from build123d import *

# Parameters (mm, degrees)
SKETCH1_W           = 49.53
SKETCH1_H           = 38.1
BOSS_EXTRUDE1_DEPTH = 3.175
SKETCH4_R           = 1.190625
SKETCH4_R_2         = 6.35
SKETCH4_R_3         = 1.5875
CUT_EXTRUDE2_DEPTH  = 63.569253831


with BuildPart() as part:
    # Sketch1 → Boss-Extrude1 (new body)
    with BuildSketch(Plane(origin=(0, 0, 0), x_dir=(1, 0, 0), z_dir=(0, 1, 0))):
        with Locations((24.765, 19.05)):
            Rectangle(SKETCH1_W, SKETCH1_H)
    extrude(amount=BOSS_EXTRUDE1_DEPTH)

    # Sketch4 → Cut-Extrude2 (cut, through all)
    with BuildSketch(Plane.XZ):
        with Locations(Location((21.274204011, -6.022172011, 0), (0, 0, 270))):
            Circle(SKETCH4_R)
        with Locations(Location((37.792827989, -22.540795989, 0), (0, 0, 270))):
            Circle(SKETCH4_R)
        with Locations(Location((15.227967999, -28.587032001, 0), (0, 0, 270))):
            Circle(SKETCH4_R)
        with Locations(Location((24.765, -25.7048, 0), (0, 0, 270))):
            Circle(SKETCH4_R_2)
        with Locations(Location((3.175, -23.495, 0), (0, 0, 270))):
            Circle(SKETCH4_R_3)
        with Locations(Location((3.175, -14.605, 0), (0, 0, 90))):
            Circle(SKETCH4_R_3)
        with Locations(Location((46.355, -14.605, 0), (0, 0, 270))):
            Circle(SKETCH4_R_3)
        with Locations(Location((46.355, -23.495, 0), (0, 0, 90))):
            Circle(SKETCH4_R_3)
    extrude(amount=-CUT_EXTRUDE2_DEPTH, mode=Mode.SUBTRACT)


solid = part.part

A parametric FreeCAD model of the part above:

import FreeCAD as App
import Part
import Sketcher
from FreeCAD import Vector
Q = App.Units.Quantity

doc = App.newDocument("Part")
body = doc.addObject("PartDesign::Body", "Body")

# Sketch on XZ plane
sketch1 = body.newObject("Sketcher::SketchObject", "Sketch")
sketch1.AttachmentSupport = (doc.getObject("XZ_Plane"), [""])
sketch1.MapMode = "FlatFace"
sketch1.addGeometry([
    Part.LineSegment(Vector(0, -38.1, 0), Vector(0, 0, 0)),
    Part.LineSegment(Vector(0, 0, 0), Vector(49.53, 0, 0)),
    Part.LineSegment(Vector(49.53, 0, 0), Vector(49.53, -38.1, 0)),
    Part.LineSegment(Vector(49.53, -38.1, 0), Vector(0, -38.1, 0)),
], False)
sketch1.addConstraint([
    Sketcher.Constraint("Coincident", 0, 2, 1, 1),
    Sketcher.Constraint("Coincident", 1, 2, 2, 1),
    Sketcher.Constraint("Coincident", 2, 2, 3, 1),
    Sketcher.Constraint("Coincident", 3, 2, 0, 1),
    Sketcher.Constraint("Vertical", 0),
    Sketcher.Constraint("Horizontal", 1),
    Sketcher.Constraint("Vertical", 2),
    Sketcher.Constraint("Horizontal", 3),
    Sketcher.Constraint("Coincident", 0, 2, -1, 1),
    Sketcher.Constraint("DistanceY", 0, 1, 0, 2, Q("1.5 in")),
    Sketcher.Constraint("DistanceX", 1, 1, 1, 2, Q("1.95 in")),
])
pad1 = body.newObject("PartDesign::Pad", "Pad")
pad1.Profile = sketch1
pad1.Length = Q("0.125 in")
pad1.Reversed = True

# Sketch on XZ plane
sketch2 = body.newObject("Sketcher::SketchObject", "Sketch001")
sketch2.AttachmentSupport = (doc.getObject("XZ_Plane"), [""])
sketch2.MapMode = "FlatFace"
sketch2.addGeometry([
    Part.Circle(Vector(21.274204, -6.022172, 0), Vector(0, 0, 1), 1.190625),  # 0
    Part.Circle(Vector(37.792828, -22.540796, 0), Vector(0, 0, 1), 1.190625),  # 1
    Part.Circle(Vector(15.227968, -28.587032, 0), Vector(0, 0, 1), 1.190625),  # 2
    Part.Circle(Vector(24.765, -25.7048, 0), Vector(0, 0, 1), 6.35),  # 3
    Part.Circle(Vector(3.175, -23.495, 0), Vector(0, 0, 1), 1.5875),  # 4
    Part.Circle(Vector(3.175, -14.605, 0), Vector(0, 0, 1), 1.5875),  # 5
    Part.Circle(Vector(46.355, -14.605, 0), Vector(0, 0, 1), 1.5875),  # 6
    Part.Circle(Vector(46.355, -23.495, 0), Vector(0, 0, 1), 1.5875),  # 7
], False)
sketch2.addConstraint([
    Sketcher.Constraint("Equal", 0, 1),
    Sketcher.Constraint("Equal", 1, 2),
    Sketcher.Constraint("Equal", 4, 5),
    Sketcher.Constraint("Equal", 5, 6),
    Sketcher.Constraint("Equal", 6, 7),
    Sketcher.Constraint("Horizontal", 5, 3, 6, 3),
    Sketcher.Constraint("Horizontal", 4, 3, 7, 3),
    Sketcher.Constraint("Vertical", 4, 3, 5, 3),
    Sketcher.Constraint("Vertical", 6, 3, 7, 3),
    Sketcher.Constraint("Diameter", 3, Q("0.5 in")),
    Sketcher.Constraint("Diameter", 0, Q("0.09375 in")),
    Sketcher.Constraint("Diameter", 4, Q("0.125 in")),
    Sketcher.Constraint("DistanceX", 5, 3, 6, 3, Q("1.7 in")),
    Sketcher.Constraint("DistanceX", 4, 3, 3, 3, Q("0.85 in")),
    Sketcher.Constraint("DistanceY", 4, 3, 5, 3, Q("0.35 in")),
    Sketcher.Constraint("DistanceX", -1, 1, 3, 3, Q("0.975 in")),
    Sketcher.Constraint("DistanceY", 3, 3, -1, 1, Q("1.012 in")),
    Sketcher.Constraint("DistanceY", 4, 3, -1, 1, Q("0.925 in")),
    Sketcher.Constraint("DistanceY", 2, 3, 0, 3, Q("22.56486 mm")),
    Sketcher.Constraint("DistanceX", 2, 3, 1, 3, Q("22.56486 mm")),
    Sketcher.Constraint("DistanceX", -1, 1, 0, 3, Q("21.274204 mm")),
    Sketcher.Constraint("DistanceY", 0, 3, -1, 1, Q("6.022172 mm")),
    Sketcher.Constraint("DistanceX", -1, 1, 1, 3, Q("37.792828 mm")),
    Sketcher.Constraint("DistanceY", 1, 3, -1, 1, Q("22.540796 mm")),
])
pocket1 = body.newObject("PartDesign::Pocket", "Pocket")
pocket1.Profile = sketch2
pocket1.Type = "ThroughAll"

doc.recompute()
